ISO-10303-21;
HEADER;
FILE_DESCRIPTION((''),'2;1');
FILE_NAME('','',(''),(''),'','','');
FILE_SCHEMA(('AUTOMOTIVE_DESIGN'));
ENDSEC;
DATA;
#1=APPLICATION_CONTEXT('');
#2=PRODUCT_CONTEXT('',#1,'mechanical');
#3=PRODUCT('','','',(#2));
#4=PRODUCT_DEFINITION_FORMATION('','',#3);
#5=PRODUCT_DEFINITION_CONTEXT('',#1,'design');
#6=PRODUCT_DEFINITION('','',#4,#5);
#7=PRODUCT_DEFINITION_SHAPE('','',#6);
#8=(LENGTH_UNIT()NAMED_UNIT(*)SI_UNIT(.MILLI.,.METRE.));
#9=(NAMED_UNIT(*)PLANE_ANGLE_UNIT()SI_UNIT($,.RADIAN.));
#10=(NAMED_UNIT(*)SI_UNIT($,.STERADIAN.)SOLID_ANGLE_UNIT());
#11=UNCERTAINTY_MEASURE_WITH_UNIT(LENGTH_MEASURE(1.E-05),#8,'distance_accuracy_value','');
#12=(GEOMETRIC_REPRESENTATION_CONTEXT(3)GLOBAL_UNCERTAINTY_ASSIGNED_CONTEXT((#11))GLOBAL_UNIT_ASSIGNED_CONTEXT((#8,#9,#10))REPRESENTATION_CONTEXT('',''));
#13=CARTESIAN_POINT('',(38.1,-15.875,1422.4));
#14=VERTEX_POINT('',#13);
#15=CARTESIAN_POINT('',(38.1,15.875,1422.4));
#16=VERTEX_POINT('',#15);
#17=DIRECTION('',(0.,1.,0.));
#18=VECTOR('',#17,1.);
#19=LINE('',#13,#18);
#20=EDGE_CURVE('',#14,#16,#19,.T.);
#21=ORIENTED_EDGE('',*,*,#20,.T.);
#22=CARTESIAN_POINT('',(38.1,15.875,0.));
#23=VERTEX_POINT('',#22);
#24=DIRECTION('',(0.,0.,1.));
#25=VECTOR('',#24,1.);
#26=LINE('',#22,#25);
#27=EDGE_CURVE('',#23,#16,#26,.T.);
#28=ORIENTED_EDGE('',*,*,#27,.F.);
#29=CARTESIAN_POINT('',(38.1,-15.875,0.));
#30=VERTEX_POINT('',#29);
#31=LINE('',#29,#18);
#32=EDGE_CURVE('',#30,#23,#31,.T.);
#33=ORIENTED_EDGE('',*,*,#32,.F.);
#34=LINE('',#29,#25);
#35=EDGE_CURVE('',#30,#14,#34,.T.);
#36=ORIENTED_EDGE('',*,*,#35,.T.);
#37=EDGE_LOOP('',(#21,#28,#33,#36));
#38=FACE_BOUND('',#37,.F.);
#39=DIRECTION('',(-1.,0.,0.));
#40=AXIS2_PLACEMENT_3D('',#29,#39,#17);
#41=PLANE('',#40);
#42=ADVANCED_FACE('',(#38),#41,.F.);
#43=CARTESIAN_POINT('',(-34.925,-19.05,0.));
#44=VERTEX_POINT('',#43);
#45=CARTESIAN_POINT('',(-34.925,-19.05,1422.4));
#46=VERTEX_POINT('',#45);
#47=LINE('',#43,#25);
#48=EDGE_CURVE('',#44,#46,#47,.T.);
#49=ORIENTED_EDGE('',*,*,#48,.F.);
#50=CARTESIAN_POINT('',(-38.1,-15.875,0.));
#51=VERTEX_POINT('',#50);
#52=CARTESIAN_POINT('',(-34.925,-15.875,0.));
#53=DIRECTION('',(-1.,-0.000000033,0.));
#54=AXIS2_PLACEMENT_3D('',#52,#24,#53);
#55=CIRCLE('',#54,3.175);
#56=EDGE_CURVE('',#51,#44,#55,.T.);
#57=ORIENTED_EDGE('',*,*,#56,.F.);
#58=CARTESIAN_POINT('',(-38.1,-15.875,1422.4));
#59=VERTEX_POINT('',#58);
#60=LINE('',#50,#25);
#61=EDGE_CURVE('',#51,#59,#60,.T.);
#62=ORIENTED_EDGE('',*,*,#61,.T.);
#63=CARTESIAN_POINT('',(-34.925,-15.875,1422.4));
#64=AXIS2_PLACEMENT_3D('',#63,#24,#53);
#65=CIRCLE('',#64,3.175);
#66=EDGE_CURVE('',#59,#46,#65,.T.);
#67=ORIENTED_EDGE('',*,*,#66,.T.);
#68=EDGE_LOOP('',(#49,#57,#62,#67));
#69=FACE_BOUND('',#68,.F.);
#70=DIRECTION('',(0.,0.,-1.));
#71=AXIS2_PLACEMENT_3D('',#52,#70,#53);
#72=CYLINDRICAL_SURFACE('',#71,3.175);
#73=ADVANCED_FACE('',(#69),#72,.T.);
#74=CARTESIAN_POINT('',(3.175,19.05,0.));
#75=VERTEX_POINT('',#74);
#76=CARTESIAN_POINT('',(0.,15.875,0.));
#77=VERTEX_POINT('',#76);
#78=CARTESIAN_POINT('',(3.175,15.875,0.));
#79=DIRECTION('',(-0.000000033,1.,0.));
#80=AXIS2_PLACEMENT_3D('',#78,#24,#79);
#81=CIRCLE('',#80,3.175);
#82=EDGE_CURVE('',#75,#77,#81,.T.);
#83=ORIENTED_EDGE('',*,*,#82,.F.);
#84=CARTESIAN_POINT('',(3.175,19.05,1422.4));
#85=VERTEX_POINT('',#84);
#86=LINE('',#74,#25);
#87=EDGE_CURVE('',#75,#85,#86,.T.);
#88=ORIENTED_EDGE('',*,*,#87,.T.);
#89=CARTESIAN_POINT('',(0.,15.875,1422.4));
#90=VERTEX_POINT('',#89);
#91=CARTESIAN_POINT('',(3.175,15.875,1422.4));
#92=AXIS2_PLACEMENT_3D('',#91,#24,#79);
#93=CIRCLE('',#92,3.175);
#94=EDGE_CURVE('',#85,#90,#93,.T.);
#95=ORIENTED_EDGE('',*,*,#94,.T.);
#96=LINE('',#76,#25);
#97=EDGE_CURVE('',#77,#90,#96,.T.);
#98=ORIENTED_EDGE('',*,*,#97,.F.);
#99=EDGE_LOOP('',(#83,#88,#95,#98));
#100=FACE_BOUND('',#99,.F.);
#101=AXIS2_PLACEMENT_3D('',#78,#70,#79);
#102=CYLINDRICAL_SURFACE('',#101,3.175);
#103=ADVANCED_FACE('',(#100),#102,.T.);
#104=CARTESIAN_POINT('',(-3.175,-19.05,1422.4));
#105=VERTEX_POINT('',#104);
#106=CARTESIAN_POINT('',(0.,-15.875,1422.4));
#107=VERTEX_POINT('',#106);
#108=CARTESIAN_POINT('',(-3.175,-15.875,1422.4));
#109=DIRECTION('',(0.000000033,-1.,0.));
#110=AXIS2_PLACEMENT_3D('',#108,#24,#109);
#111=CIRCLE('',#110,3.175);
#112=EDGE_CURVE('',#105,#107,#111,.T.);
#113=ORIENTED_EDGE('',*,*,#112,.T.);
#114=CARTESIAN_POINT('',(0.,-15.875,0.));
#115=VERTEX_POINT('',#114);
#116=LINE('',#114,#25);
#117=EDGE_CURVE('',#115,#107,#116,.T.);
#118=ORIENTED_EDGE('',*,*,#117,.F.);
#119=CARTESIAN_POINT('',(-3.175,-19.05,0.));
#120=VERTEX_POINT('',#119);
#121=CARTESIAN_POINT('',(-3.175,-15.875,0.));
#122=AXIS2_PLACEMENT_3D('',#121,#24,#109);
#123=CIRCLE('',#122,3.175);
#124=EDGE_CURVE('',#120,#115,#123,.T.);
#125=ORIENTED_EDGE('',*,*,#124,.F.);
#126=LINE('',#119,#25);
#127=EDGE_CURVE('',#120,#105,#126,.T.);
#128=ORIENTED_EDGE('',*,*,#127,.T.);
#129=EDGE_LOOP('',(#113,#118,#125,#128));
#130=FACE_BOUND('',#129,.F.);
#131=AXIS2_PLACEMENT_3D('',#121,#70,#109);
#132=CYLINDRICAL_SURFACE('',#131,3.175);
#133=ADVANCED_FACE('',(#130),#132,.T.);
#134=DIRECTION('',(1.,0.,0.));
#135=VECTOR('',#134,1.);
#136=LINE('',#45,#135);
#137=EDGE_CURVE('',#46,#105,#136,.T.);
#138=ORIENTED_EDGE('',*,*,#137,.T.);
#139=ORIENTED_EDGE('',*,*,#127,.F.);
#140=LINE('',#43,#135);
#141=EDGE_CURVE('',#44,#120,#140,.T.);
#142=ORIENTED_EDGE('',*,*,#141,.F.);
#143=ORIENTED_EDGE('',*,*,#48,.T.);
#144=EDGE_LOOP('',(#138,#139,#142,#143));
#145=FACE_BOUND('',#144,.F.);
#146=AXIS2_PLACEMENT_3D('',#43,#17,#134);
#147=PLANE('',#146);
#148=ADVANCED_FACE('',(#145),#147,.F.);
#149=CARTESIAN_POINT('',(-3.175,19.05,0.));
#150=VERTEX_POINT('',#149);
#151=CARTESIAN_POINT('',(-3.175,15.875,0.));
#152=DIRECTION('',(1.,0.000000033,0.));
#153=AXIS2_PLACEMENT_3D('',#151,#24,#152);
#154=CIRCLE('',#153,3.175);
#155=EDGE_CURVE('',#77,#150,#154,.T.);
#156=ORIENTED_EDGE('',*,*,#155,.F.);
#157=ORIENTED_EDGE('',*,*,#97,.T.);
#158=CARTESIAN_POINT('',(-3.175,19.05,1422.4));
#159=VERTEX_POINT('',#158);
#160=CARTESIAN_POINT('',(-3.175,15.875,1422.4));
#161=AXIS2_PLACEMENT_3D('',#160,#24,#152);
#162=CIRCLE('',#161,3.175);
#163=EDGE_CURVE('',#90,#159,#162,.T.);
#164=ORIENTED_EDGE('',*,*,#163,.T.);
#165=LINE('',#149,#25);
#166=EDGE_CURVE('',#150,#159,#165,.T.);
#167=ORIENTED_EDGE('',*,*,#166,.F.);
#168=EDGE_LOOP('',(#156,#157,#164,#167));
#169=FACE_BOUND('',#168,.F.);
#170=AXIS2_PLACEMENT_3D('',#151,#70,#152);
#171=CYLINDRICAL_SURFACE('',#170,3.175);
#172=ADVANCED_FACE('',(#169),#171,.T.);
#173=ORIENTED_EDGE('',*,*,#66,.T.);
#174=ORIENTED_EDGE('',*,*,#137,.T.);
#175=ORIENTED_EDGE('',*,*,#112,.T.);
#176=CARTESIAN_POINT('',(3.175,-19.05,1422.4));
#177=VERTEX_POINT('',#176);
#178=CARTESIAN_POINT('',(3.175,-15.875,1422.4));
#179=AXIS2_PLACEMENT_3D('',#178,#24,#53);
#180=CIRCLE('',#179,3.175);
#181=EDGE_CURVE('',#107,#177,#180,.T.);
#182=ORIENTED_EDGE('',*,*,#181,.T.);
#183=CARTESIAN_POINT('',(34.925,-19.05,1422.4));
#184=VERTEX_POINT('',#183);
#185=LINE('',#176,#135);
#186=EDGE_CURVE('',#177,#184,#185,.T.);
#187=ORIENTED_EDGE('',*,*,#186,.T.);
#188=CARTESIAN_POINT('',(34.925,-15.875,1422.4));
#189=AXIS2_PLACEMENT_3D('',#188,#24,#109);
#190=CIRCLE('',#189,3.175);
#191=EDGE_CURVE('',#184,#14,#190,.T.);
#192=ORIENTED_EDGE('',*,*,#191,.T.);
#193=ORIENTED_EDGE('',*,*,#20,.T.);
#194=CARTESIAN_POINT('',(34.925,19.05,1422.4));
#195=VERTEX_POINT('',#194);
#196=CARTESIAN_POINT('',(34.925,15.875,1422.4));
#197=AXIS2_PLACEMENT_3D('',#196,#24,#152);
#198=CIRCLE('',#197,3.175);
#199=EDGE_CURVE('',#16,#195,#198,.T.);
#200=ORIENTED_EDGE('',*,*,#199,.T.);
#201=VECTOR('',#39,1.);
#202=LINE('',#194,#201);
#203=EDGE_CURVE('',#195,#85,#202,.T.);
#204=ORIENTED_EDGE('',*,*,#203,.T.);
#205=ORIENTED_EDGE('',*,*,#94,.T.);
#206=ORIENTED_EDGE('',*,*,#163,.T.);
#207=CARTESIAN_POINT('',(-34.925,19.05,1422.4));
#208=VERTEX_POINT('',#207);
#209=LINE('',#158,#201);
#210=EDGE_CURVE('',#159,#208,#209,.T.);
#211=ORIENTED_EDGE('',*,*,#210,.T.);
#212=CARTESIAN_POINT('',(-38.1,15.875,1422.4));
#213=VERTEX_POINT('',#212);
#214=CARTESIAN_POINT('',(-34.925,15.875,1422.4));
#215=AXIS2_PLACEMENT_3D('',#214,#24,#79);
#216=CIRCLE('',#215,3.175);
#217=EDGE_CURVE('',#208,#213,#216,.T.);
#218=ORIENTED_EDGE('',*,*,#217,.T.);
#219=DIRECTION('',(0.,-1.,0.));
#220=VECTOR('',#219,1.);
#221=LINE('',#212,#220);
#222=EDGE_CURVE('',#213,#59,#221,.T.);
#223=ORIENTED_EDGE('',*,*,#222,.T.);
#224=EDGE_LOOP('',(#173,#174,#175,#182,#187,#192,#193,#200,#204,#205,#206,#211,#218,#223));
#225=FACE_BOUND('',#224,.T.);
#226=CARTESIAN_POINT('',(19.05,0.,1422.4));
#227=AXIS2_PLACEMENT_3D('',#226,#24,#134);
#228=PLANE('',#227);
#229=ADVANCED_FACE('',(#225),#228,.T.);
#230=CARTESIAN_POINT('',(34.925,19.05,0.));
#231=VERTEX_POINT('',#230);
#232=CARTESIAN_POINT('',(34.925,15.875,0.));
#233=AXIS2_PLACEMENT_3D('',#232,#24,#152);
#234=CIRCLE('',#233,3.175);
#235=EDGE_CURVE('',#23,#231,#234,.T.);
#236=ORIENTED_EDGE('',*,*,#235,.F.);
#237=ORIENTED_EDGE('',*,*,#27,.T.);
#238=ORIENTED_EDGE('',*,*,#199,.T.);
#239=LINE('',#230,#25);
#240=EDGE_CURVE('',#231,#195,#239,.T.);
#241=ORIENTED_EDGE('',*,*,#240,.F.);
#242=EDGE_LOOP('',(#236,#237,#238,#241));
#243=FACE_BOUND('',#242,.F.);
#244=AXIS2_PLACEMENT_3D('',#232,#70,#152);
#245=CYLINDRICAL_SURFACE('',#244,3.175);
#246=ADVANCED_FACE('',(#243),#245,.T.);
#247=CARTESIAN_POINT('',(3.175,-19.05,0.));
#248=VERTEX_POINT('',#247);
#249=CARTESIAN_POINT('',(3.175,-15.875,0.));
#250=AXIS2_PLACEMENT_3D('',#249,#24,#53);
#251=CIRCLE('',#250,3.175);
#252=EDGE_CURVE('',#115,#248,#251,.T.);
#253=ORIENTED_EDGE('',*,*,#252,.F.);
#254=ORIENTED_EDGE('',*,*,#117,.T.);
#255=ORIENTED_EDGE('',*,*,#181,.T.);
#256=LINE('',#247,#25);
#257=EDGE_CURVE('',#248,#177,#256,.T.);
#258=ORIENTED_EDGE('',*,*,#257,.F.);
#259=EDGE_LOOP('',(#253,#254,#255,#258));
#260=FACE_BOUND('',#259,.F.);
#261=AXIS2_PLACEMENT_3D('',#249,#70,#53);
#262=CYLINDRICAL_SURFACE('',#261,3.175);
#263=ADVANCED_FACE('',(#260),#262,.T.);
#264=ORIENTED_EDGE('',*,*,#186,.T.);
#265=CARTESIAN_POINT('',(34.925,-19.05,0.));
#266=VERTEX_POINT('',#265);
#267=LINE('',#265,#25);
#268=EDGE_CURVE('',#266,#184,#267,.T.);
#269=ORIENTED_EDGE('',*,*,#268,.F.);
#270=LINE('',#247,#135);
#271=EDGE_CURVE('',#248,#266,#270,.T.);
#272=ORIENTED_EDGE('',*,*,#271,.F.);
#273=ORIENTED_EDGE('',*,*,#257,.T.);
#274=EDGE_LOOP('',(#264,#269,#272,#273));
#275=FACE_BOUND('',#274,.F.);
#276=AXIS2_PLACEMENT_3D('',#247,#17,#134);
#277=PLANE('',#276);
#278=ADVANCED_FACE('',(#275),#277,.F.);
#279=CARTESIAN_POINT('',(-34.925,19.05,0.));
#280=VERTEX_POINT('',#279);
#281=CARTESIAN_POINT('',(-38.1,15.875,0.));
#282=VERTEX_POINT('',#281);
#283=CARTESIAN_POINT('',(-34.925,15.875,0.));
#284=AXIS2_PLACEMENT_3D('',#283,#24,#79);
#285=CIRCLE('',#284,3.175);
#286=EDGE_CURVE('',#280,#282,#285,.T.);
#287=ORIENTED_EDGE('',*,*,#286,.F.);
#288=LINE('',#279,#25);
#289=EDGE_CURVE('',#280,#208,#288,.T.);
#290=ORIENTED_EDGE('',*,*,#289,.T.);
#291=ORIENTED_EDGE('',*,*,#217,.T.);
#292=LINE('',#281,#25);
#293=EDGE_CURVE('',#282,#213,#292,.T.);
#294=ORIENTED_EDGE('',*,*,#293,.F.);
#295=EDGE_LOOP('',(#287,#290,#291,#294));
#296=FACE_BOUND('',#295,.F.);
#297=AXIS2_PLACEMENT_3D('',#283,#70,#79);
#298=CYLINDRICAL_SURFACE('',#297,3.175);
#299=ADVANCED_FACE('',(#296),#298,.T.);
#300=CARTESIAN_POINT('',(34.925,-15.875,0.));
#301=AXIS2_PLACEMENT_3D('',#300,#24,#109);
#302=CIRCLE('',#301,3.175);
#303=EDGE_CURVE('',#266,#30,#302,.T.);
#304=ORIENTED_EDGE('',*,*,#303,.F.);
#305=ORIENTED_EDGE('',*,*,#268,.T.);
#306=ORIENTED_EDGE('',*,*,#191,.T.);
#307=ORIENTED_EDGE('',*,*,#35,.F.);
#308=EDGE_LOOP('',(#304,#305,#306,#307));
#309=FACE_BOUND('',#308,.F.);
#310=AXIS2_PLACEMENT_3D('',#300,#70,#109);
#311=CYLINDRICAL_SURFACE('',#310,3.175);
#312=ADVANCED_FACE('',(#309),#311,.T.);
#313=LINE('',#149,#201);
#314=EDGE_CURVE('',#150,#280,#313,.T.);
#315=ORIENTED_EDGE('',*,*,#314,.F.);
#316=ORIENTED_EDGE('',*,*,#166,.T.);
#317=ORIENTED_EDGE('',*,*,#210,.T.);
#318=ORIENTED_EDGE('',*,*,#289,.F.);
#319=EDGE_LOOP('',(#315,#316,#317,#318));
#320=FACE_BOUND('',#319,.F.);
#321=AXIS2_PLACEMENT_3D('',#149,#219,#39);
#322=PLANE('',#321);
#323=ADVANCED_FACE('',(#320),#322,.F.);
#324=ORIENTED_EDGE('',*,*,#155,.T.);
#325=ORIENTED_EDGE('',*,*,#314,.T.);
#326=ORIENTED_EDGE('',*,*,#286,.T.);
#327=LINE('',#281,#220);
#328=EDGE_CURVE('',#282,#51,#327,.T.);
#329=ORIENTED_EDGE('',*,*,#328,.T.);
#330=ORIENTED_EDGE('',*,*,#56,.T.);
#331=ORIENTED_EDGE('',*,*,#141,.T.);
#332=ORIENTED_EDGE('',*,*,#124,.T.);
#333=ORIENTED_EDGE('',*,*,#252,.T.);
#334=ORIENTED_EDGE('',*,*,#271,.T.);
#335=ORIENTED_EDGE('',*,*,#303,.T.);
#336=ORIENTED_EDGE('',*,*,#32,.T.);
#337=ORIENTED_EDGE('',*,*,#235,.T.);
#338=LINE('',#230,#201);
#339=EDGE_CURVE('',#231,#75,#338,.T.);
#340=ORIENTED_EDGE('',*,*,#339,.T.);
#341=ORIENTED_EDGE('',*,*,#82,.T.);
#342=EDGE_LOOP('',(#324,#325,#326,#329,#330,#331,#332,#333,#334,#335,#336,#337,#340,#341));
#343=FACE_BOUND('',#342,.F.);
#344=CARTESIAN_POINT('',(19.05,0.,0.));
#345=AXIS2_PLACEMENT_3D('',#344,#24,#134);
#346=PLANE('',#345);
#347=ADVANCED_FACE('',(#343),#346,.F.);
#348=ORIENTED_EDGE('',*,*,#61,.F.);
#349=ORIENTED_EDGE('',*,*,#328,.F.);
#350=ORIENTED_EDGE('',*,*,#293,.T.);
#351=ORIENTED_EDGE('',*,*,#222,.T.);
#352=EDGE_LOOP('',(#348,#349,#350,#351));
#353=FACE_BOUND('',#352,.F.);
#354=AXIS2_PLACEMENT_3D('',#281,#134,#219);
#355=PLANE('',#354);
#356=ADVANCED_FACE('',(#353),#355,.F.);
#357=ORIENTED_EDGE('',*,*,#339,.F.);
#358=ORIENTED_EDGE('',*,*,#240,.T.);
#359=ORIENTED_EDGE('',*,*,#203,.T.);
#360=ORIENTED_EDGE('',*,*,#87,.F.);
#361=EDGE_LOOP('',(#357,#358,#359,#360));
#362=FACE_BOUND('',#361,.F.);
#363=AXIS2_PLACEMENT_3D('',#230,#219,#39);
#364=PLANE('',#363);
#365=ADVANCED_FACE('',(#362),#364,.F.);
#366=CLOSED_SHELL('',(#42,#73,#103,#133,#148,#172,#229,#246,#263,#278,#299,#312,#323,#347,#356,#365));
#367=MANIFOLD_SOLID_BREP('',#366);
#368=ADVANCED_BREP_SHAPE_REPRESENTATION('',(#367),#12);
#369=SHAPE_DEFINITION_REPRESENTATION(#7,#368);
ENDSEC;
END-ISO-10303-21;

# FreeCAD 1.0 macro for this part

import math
import FreeCAD as App
import Part
import Sketcher
Q = App.Units.Quantity

doc = App.newDocument("Part")
params = doc.addObject("Spreadsheet::Sheet", "Params")
for row, (alias, value) in enumerate([
    ("sketch1_radius", "0.125 in"),
    ("sketch1_width", "1.25 in"),
    ("pad1_length", "56 in"),
], start=1):
    params.set(f"A{row}", alias)
    params.set(f"B{row}", "=" + value)
    params.setAlias(f"B{row}", alias)

body = doc.addObject("PartDesign::Body", "Body")

sketch1 = doc.addObject("Sketcher::SketchObject", "Sketch")
body.addObject(sketch1)
sketch1.AttachmentSupport = (doc.XY_Plane, [""])
sketch1.MapMode = "FlatFace"
sketch1.addGeometry([
    Part.ArcOfCircle(Part.Circle(App.Vector(34.925, 15.875, 0), App.Vector(0, 0, 1), 3.175), math.radians(0.000002), math.radians(89.999998)),
    Part.LineSegment(App.Vector(34.925, 19.05, 0), App.Vector(3.175, 19.05, 0)),
    Part.ArcOfCircle(Part.Circle(App.Vector(3.175, 15.875, 0), App.Vector(0, 0, 1), 3.175), math.radians(90.000002), math.radians(179.999998)),
    Part.ArcOfCircle(Part.Circle(App.Vector(-3.175, 15.875, 0), App.Vector(0, 0, 1), 3.175), math.radians(0.000002), math.radians(89.999998)),
    Part.LineSegment(App.Vector(-3.175, 19.05, 0), App.Vector(-34.925, 19.05, 0)),
    Part.ArcOfCircle(Part.Circle(App.Vector(-34.925, 15.875, 0), App.Vector(0, 0, 1), 3.175), math.radians(90.000002), math.radians(179.999998)),
    Part.LineSegment(App.Vector(-38.1, 15.875, 0), App.Vector(-38.1, -15.875, 0)),
    Part.ArcOfCircle(Part.Circle(App.Vector(-34.925, -15.875, 0), App.Vector(0, 0, 1), 3.175), math.radians(-179.999998), math.radians(-90.000002)),
    Part.LineSegment(App.Vector(-34.925, -19.05, 0), App.Vector(-3.175, -19.05, 0)),
    Part.ArcOfCircle(Part.Circle(App.Vector(-3.175, -15.875, 0), App.Vector(0, 0, 1), 3.175), math.radians(-89.999998), math.radians(-0.000002)),
    Part.ArcOfCircle(Part.Circle(App.Vector(3.175, -15.875, 0), App.Vector(0, 0, 1), 3.175), math.radians(-179.999998), math.radians(-90.000002)),
    Part.LineSegment(App.Vector(3.175, -19.05, 0), App.Vector(34.925, -19.05, 0)),
    Part.ArcOfCircle(Part.Circle(App.Vector(34.925, -15.875, 0), App.Vector(0, 0, 1), 3.175), math.radians(-89.999998), math.radians(-0.000002)),
    Part.LineSegment(App.Vector(38.1, -15.875, 0), App.Vector(38.1, 15.875, 0)),
], False)
sketch1.addConstraint([
    Sketcher.Constraint("Tangent", 0, 2, 1, 1),
    Sketcher.Constraint("Tangent", 1, 2, 2, 1),
    Sketcher.Constraint("Tangent", 2, 2, 3, 1),
    Sketcher.Constraint("Tangent", 3, 2, 4, 1),
    Sketcher.Constraint("Tangent", 4, 2, 5, 1),
    Sketcher.Constraint("Tangent", 5, 2, 6, 1),
    Sketcher.Constraint("Tangent", 6, 2, 7, 1),
    Sketcher.Constraint("Tangent", 7, 2, 8, 1),
    Sketcher.Constraint("Tangent", 8, 2, 9, 1),
    Sketcher.Constraint("Tangent", 9, 2, 10, 1),
    Sketcher.Constraint("Tangent", 10, 2, 11, 1),
    Sketcher.Constraint("Tangent", 11, 2, 12, 1),
    Sketcher.Constraint("Tangent", 12, 2, 13, 1),
    Sketcher.Constraint("Tangent", 13, 2, 0, 1),
    Sketcher.Constraint("Horizontal", 1),
    Sketcher.Constraint("Horizontal", 4),
    Sketcher.Constraint("Vertical", 6),
    Sketcher.Constraint("Horizontal", 8),
    Sketcher.Constraint("Horizontal", 11),
    Sketcher.Constraint("Vertical", 13),
    Sketcher.Constraint("Equal", 0, 2),
    Sketcher.Constraint("Equal", 2, 3),
    Sketcher.Constraint("Equal", 3, 5),
    Sketcher.Constraint("Equal", 5, 7),
    Sketcher.Constraint("Equal", 7, 9),
    Sketcher.Constraint("Equal", 9, 10),
    Sketcher.Constraint("Equal", 10, 12),
    Sketcher.Constraint("Symmetric", 0, 3, 7, 3, -1, 1),
    Sketcher.Constraint("Symmetric", 3, 3, 10, 3, -1, 1),
    Sketcher.Constraint("Symmetric", 2, 3, 3, 3, -2),
    Sketcher.Constraint("Equal", 11, 6),
    Sketcher.Constraint("Radius", 0, Q("0.125 in")),
    Sketcher.Constraint("DistanceX", 1, 2, 1, 1, Q("1.25 in")),
])
sketch1.setExpression("Constraints[31]", "Params.sketch1_radius")
sketch1.setExpression("Constraints[32]", "Params.sketch1_width")
pad1 = doc.addObject("PartDesign::Pad", "Pad")
body.addObject(pad1)
pad1.Profile = sketch1
pad1.setExpression("Length", "Params.pad1_length")

doc.recompute()
